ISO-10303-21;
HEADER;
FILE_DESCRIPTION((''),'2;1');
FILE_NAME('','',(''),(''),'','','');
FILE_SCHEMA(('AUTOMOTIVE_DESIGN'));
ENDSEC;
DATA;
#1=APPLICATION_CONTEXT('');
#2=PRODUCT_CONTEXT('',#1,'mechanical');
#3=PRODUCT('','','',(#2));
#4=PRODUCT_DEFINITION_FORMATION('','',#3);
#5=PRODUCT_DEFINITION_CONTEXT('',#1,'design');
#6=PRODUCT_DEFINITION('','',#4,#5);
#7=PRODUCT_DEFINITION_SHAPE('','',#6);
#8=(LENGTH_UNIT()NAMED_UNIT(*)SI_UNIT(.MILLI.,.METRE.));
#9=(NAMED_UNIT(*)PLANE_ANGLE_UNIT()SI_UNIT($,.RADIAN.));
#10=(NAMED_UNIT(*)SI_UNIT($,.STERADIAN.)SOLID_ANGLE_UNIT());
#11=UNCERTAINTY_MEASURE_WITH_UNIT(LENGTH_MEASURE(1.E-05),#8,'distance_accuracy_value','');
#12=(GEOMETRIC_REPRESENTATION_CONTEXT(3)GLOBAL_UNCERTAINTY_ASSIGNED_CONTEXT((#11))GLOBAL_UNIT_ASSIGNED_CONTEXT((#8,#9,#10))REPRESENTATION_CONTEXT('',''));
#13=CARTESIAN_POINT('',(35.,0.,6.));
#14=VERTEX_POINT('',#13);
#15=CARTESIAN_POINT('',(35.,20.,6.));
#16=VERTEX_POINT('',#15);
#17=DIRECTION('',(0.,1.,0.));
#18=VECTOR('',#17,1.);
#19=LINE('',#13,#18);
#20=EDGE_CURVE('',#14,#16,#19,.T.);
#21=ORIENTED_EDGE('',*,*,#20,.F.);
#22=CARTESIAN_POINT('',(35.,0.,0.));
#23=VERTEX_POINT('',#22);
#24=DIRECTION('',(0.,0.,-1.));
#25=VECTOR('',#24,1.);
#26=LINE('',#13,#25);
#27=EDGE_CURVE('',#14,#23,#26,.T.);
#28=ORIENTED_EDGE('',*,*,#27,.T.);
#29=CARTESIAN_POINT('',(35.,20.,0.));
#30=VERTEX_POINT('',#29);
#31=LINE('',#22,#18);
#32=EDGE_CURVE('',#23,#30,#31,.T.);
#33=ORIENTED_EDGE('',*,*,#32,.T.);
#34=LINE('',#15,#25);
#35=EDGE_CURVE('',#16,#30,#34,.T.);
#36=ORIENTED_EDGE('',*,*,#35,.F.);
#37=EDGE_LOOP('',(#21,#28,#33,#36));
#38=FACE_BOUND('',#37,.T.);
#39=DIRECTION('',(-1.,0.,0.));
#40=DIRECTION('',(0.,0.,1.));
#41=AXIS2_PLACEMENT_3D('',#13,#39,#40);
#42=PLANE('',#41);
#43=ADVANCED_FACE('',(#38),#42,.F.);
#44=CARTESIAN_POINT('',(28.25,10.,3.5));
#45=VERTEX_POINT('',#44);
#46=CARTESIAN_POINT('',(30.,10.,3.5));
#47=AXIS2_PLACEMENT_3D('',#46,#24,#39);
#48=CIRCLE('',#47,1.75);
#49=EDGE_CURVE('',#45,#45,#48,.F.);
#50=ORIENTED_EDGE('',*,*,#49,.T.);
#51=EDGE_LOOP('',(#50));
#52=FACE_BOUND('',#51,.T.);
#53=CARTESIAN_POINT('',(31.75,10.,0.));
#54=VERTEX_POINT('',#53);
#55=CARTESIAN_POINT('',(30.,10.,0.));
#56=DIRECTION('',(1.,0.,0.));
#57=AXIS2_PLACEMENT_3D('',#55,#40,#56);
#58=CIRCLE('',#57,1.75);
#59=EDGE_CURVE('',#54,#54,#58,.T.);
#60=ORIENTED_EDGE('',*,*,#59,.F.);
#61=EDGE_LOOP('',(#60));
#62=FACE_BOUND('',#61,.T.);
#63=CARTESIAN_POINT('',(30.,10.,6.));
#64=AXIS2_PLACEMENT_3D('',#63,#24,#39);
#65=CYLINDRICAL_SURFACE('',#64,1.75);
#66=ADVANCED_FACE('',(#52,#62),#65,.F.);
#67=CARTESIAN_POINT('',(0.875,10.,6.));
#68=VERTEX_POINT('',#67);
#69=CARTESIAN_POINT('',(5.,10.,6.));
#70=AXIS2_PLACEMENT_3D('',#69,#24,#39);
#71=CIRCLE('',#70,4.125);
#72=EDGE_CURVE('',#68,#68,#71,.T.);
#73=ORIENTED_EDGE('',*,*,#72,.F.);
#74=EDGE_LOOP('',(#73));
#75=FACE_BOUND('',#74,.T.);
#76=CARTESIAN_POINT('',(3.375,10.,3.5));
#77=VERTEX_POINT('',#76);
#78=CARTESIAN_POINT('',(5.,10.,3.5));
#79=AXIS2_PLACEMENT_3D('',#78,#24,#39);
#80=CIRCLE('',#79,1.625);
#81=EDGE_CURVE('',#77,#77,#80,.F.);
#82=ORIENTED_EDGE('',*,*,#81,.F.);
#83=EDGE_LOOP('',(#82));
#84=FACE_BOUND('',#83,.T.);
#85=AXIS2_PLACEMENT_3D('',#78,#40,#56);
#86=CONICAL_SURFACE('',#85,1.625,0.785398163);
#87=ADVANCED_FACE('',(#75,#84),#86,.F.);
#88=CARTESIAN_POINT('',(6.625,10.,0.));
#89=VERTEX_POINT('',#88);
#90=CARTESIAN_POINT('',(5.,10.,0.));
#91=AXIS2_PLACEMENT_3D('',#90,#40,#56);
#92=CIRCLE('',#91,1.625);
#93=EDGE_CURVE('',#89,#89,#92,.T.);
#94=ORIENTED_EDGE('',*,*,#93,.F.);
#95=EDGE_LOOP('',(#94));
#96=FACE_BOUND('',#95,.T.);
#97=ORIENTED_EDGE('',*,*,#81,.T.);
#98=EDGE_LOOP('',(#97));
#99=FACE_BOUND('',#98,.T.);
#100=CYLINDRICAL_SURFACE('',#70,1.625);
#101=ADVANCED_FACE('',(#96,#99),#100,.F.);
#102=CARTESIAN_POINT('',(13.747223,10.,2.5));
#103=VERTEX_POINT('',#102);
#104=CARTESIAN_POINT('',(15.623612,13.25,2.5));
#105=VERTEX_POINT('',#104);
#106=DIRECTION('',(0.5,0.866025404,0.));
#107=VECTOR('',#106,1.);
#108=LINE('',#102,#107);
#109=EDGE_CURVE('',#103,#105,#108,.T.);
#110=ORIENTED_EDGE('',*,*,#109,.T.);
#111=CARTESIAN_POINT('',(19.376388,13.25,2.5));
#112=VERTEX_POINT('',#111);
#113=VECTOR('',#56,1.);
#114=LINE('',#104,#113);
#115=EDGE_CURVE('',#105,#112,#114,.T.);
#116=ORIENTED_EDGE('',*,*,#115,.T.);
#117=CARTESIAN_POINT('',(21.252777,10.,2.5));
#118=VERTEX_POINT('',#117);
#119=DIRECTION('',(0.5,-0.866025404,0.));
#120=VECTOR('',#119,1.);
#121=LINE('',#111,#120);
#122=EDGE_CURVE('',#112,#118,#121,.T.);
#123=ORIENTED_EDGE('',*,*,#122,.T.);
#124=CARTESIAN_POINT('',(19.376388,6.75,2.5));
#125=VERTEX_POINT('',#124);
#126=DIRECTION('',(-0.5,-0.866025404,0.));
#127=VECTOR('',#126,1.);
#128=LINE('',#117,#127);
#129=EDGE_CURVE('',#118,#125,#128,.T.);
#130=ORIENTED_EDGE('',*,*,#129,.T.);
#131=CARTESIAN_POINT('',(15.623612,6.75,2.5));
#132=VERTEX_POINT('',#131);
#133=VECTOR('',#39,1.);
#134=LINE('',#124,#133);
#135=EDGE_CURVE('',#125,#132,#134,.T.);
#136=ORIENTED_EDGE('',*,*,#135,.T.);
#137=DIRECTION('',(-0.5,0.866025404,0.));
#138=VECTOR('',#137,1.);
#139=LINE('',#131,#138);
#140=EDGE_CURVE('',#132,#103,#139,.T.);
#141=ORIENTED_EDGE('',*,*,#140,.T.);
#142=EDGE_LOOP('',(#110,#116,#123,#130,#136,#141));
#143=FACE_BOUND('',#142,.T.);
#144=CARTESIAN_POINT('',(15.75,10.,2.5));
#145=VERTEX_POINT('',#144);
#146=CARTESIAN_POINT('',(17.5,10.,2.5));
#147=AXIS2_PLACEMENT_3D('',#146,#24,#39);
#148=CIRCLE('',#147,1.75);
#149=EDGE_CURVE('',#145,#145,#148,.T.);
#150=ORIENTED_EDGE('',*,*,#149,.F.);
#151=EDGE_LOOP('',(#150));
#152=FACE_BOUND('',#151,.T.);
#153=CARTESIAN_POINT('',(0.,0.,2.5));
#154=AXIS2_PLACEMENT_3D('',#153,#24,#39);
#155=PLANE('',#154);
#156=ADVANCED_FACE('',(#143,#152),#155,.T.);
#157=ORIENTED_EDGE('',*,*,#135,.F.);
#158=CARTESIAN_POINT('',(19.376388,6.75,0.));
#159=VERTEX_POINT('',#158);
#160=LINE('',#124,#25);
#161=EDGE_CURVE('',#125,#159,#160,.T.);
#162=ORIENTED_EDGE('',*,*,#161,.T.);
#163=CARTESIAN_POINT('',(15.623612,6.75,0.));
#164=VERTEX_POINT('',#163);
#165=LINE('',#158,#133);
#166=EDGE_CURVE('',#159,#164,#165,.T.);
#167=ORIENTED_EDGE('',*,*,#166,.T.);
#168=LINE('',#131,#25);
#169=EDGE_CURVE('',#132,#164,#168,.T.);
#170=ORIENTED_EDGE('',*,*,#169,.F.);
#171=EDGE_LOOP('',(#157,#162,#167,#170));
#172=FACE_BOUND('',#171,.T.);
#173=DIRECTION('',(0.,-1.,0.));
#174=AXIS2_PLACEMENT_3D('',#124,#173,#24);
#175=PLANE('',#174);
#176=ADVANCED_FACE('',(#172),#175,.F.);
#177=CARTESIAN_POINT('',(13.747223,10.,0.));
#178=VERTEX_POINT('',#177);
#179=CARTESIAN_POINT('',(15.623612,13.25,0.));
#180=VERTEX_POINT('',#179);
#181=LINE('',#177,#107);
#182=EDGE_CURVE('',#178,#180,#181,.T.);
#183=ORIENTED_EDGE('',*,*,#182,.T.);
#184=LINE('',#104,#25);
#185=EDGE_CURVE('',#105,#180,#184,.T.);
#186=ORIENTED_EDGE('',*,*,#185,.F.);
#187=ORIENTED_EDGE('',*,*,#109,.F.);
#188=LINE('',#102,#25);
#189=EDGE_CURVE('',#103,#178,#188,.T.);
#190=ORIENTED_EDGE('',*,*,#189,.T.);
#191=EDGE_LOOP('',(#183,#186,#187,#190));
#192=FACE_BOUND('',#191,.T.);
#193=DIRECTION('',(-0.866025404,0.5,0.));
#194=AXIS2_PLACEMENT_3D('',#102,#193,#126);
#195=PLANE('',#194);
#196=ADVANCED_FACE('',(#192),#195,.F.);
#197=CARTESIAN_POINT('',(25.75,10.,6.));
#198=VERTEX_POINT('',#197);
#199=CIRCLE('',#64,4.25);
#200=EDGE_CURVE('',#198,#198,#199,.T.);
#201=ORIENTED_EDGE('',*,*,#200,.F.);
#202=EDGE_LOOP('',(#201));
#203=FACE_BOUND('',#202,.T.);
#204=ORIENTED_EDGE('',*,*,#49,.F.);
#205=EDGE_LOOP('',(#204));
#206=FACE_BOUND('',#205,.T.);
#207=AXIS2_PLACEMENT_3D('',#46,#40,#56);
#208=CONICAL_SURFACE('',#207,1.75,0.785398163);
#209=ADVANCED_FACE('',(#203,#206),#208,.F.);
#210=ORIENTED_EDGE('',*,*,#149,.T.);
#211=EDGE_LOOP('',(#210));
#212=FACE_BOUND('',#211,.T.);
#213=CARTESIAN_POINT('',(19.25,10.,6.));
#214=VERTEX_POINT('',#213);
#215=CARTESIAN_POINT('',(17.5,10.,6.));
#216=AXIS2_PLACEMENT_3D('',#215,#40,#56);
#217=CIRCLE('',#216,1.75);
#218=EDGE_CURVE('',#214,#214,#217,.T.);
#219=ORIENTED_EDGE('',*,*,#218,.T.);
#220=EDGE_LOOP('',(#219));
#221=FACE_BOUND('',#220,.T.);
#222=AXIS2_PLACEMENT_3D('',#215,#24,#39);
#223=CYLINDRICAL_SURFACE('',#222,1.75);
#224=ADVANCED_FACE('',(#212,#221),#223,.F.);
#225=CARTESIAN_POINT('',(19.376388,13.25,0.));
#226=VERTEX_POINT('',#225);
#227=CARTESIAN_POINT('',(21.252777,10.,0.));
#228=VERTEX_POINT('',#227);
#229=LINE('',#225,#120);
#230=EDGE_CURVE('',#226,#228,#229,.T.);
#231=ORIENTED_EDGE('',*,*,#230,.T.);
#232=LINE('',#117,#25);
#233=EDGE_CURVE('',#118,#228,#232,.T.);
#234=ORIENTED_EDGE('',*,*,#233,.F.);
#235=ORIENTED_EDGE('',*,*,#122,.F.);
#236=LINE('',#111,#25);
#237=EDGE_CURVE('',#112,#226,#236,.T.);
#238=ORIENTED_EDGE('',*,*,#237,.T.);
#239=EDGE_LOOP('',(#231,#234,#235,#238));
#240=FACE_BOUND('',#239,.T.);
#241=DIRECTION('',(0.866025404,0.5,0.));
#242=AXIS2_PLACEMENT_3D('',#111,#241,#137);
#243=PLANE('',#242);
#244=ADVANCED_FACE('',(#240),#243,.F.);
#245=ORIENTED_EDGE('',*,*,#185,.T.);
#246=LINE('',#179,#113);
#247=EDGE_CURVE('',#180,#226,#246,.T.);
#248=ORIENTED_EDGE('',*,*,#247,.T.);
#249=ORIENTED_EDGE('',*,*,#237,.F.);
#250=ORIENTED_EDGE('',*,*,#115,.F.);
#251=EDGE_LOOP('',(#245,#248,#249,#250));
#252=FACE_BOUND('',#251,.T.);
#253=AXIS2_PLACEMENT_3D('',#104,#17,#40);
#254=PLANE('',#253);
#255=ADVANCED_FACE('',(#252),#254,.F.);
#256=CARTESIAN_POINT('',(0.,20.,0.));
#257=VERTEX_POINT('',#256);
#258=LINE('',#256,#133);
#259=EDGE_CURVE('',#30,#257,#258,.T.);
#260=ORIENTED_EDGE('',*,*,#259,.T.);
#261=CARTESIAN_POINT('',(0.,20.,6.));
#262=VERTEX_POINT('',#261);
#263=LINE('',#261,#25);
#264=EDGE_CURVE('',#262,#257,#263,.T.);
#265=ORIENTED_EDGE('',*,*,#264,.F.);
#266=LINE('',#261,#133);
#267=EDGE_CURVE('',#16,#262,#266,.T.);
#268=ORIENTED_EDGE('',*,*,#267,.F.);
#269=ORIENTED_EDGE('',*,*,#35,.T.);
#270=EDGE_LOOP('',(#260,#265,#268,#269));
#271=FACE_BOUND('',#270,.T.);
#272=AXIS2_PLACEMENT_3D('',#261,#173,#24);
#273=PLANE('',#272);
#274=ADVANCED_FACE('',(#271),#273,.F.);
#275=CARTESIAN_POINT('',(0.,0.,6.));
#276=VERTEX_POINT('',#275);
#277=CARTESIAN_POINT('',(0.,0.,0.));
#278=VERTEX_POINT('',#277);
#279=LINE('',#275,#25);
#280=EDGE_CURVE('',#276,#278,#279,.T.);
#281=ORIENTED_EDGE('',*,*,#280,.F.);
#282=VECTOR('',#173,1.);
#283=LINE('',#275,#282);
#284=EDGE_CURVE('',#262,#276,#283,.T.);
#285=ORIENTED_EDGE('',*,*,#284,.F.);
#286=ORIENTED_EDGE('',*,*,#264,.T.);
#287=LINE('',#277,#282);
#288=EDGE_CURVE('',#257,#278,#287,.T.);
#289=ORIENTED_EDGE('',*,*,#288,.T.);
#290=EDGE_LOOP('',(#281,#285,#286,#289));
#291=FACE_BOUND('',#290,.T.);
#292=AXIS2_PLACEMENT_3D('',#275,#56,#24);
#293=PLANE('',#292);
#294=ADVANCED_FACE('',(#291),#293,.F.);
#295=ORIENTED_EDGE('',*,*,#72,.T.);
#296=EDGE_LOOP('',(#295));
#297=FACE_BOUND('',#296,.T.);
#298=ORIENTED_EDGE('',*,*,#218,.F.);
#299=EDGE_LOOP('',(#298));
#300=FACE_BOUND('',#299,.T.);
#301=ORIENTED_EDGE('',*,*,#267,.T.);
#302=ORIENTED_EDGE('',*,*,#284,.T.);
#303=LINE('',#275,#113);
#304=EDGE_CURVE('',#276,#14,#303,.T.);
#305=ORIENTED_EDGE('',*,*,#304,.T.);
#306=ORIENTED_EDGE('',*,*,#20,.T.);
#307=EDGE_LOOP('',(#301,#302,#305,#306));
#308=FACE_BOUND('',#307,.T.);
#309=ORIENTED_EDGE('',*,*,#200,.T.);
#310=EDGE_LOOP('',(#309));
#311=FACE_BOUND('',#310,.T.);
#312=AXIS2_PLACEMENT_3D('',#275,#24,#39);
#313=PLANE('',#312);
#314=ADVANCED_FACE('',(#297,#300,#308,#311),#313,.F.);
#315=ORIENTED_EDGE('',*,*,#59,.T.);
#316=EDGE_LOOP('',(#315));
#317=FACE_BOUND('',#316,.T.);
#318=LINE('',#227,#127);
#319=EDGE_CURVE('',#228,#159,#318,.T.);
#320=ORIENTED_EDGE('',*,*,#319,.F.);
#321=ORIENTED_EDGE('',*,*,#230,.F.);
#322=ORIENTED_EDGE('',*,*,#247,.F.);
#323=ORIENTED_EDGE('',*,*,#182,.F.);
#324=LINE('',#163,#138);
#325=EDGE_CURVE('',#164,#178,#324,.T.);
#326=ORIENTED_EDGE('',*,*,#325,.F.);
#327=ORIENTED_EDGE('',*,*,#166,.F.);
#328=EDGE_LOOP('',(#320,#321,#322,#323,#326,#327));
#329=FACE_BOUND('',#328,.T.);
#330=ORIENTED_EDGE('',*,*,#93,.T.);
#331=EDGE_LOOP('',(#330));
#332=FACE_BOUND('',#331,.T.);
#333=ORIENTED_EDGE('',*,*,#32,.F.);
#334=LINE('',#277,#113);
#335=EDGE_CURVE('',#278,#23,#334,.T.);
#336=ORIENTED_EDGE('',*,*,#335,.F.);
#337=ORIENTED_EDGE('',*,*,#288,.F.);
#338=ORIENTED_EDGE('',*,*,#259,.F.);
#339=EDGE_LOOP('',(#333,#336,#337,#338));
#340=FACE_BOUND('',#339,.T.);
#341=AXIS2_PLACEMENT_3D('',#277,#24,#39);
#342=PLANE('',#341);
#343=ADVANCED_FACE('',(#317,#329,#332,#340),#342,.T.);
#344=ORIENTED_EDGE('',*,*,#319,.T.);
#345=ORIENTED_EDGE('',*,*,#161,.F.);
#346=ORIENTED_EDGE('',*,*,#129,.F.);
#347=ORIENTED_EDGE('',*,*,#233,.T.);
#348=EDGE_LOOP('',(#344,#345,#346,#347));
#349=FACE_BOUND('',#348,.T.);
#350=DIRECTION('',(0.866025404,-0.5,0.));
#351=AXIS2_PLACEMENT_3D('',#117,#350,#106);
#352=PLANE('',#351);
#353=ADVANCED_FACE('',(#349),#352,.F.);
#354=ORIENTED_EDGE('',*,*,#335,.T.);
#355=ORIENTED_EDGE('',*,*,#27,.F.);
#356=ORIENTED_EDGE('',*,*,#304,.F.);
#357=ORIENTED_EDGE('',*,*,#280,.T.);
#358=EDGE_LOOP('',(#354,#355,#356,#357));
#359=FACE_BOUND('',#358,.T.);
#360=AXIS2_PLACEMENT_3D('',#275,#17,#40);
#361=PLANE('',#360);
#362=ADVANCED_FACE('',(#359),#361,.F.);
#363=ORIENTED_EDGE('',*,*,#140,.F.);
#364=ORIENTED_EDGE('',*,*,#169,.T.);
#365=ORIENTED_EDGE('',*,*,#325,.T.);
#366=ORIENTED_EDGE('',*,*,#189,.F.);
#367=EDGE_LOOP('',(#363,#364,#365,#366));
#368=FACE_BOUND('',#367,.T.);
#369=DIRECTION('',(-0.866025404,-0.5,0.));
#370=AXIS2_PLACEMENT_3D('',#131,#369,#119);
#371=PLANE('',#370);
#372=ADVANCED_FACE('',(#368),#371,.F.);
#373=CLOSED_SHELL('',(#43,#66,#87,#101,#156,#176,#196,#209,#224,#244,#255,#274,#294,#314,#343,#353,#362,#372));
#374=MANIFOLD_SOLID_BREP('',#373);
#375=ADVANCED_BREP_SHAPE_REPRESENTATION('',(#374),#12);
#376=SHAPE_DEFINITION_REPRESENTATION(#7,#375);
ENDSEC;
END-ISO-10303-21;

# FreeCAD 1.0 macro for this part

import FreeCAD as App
import Part
import Sketcher

V = App.Vector
Q = App.Units.Quantity


def edges_at(feature, points):
    """Names of the edges that pass closest to the given points."""
    edges = feature.Shape.Edges
    near = lambda p: min(range(len(edges)), key=lambda i: edges[i].distToShape(Part.Vertex(*p))[0])
    return sorted({f"Edge{near(p) + 1}" for p in points})

doc = App.newDocument("Part")
body = doc.addObject("PartDesign::Body", "Body")

sketch1 = doc.addObject("Sketcher::SketchObject", "Sketch")
body.addObject(sketch1)
sketch1.AttachmentSupport = (doc.XY_Plane, [""])
sketch1.MapMode = "FlatFace"
sketch1.addGeometry([
    Part.LineSegment(V(0, 20, 0), V(0, 0, 0)),
    Part.LineSegment(V(0, 0, 0), V(35, 0, 0)),
    Part.LineSegment(V(35, 0, 0), V(35, 20, 0)),
    Part.LineSegment(V(35, 20, 0), V(0, 20, 0)),
    Part.Circle(V(5, 10, 0), V(0, 0, 1), 1.6),
    Part.Circle(V(17.5, 10, 0), V(0, 0, 1), 1.8),
    Part.Circle(V(30, 10, 0), V(0, 0, 1), 1.8),
], False)
sketch1.addConstraint([
    Sketcher.Constraint("Coincident", 0, 2, 1, 1),
    Sketcher.Constraint("Coincident", 1, 2, 2, 1),
    Sketcher.Constraint("Coincident", 2, 2, 3, 1),
    Sketcher.Constraint("Coincident", 3, 2, 0, 1),
    Sketcher.Constraint("Vertical", 0),
    Sketcher.Constraint("Horizontal", 1),
    Sketcher.Constraint("Vertical", 2),
    Sketcher.Constraint("Horizontal", 3),
    Sketcher.Constraint("Coincident", 0, 2, -1, 1),
    Sketcher.Constraint("Equal", 5, 6),
    Sketcher.Constraint("Horizontal", 4, 3, 5, 3),
    Sketcher.Constraint("Horizontal", 5, 3, 6, 3),
    Sketcher.Constraint("Diameter", 5, Q("3.5 mm")),
    Sketcher.Constraint("Diameter", 4, Q("3.25 mm")),
    Sketcher.Constraint("DistanceX", 1, 1, 1, 2, Q("35 mm")),
    Sketcher.Constraint("DistanceY", 0, 2, 0, 1, Q("20 mm")),
    Sketcher.Constraint("DistanceX", -1, 1, 4, 3, Q("5 mm")),
    Sketcher.Constraint("DistanceY", -1, 1, 4, 3, Q("10 mm")),
    Sketcher.Constraint("DistanceX", -1, 1, 6, 3, Q("30 mm")),
    Sketcher.Constraint("DistanceX", -1, 1, 5, 3, Q("17.5 mm")),
])
pad1 = doc.addObject("PartDesign::Pad", "Pad")
body.addObject(pad1)
pad1.Profile = sketch1
pad1.Length = 6
doc.recompute()

chamfer = doc.addObject("PartDesign::Chamfer", "Chamfer")
body.addObject(chamfer)
chamfer.Base = (pad1, edges_at(pad1, [(3.375, 10, 6), (28.25, 10, 6)]))
chamfer.Size = 2.5

sketch2 = doc.addObject("Sketcher::SketchObject", "Sketch001")
body.addObject(sketch2)
sketch2.AttachmentSupport = (doc.XY_Plane, [""])
sketch2.MapMode = "FlatFace"
sketch2.addGeometry([
    Part.LineSegment(V(19.4, 13.2, 0), V(21.3, 10, 0)),
    Part.LineSegment(V(21.3, 10, 0), V(19.4, 6.8, 0)),
    Part.LineSegment(V(19.4, 6.8, 0), V(15.6, 6.8, 0)),
    Part.LineSegment(V(15.6, 6.8, 0), V(13.7, 10, 0)),
    Part.LineSegment(V(13.7, 10, 0), V(15.6, 13.2, 0)),
    Part.LineSegment(V(15.6, 13.2, 0), V(19.4, 13.2, 0)),
], False)
sketch2.addConstraint([
    Sketcher.Constraint("Coincident", 0, 2, 1, 1),
    Sketcher.Constraint("Coincident", 1, 2, 2, 1),
    Sketcher.Constraint("Coincident", 2, 2, 3, 1),
    Sketcher.Constraint("Coincident", 3, 2, 4, 1),
    Sketcher.Constraint("Coincident", 4, 2, 5, 1),
    Sketcher.Constraint("Coincident", 5, 2, 0, 1),
    Sketcher.Constraint("Horizontal", 2),
    Sketcher.Constraint("Horizontal", 5),
    Sketcher.Constraint("Parallel", 0, 3),
    Sketcher.Constraint("Parallel", 1, 4),
    Sketcher.Constraint("Horizontal", 0, 2, 3, 2),
    Sketcher.Constraint("Vertical", 2, 2, 4, 2),
    Sketcher.Constraint("Vertical", 1, 2, 5, 2),
    Sketcher.Constraint("Angle", 0, Q("-60 deg")),
    Sketcher.Constraint("DistanceY", -1, 1, 0, 2, Q("10 mm")),
    Sketcher.Constraint("DistanceY", 2, 2, 4, 2, Q("6.5 mm")),
    Sketcher.Constraint("DistanceX", 2, 2, 2, 1, Q("3.752777 mm")),
    Sketcher.Constraint("DistanceX", -1, 1, 1, 2, Q("19.376388 mm")),
])
pocket1 = doc.addObject("PartDesign::Pocket", "Pocket")
body.addObject(pocket1)
pocket1.Profile = sketch2
pocket1.Length = 2.5
pocket1.Reversed = True

doc.recompute()
